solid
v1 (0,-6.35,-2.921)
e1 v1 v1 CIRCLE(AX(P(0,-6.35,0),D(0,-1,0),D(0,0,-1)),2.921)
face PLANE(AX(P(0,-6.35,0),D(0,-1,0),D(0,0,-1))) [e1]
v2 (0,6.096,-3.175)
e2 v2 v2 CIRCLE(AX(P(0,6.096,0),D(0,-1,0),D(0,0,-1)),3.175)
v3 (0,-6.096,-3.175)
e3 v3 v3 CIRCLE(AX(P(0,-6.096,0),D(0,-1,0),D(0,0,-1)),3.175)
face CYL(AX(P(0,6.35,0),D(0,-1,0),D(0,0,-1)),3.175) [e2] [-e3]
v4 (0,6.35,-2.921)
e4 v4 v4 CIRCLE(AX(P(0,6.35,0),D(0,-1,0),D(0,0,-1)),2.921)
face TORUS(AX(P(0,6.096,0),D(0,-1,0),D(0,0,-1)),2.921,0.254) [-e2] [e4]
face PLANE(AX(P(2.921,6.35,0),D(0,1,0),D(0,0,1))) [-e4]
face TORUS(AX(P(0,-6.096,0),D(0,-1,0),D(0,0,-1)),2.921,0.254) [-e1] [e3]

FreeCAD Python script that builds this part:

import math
import FreeCAD as App
import Part
import Sketcher

V = App.Vector
Q = App.Units.Quantity

doc = App.newDocument("Part")
params = doc.addObject("Spreadsheet::Sheet", "Params")
for row, (alias, value) in enumerate([
    ("sketch1_radius", "0.01 in"),
    ("sketch1_height", "0.5 in"),
    ("sketch1_width", "0.115 in"),
    ("revolution_angle", "360 deg"),
], start=1):
    params.set(f"A{row}", alias)
    params.set(f"B{row}", "=" + value)
    params.setAlias(f"B{row}", alias)

body = doc.addObject("PartDesign::Body", "Body")

# Sketch on XY plane
sketch1 = body.newObject("Sketcher::SketchObject", "Sketch")
sketch1.AttachmentSupport = (doc.getObject("XY_Plane"), [""])
sketch1.MapMode = "FlatFace"
sketch1.addGeometry(Part.LineSegment(V(2.921, 6.35, 0), V(0, 6.35, 0)), False)
sketch1.addGeometry(Part.LineSegment(V(0, 6.35, 0), V(0, -6.35, 0)), False)
sketch1.addGeometry(Part.LineSegment(V(0, -6.35, 0), V(2.921, -6.35, 0)), False)
sketch1.addGeometry(Part.ArcOfCircle(Part.Circle(V(2.921, -6.096, 0), V(0, 0, 1), 0.254), math.radians(-90), math.radians(0)), False)
sketch1.addGeometry(Part.LineSegment(V(3.175, -6.096, 0), V(3.175, 6.096, 0)), False)
sketch1.addGeometry(Part.ArcOfCircle(Part.Circle(V(2.921, 6.096, 0), V(0, 0, 1), 0.254), math.radians(0), math.radians(90)), False)
sketch1.addConstraint(Sketcher.Constraint("Coincident", 0, 2, 1, 1))
sketch1.addConstraint(Sketcher.Constraint("Coincident", 1, 2, 2, 1))
sketch1.addConstraint(Sketcher.Constraint("Tangent", 2, 2, 3, 1))
sketch1.addConstraint(Sketcher.Constraint("Tangent", 3, 2, 4, 1))
sketch1.addConstraint(Sketcher.Constraint("Tangent", 4, 2, 5, 1))
sketch1.addConstraint(Sketcher.Constraint("Tangent", 5, 2, 0, 1))
sketch1.addConstraint(Sketcher.Constraint("Horizontal", 0))
sketch1.addConstraint(Sketcher.Constraint("Vertical", 1))
sketch1.addConstraint(Sketcher.Constraint("Horizontal", 2))
sketch1.addConstraint(Sketcher.Constraint("Vertical", 4))
sketch1.addConstraint(Sketcher.Constraint("Equal", 3, 5))
sketch1.addConstraint(Sketcher.Constraint("Symmetric", 0, 2, 1, 2, -1, 1))
sketch1.addConstraint(Sketcher.Constraint("Radius", 3, Q("0.01 in")))
sketch1.addConstraint(Sketcher.Constraint("DistanceY", 1, 2, 1, 1, Q("0.5 in")))
sketch1.addConstraint(Sketcher.Constraint("DistanceX", 0, 2, 0, 1, Q("0.115 in")))
sketch1.setExpression("Constraints[12]", "Params.sketch1_radius")
sketch1.setExpression("Constraints[13]", "Params.sketch1_height")
sketch1.setExpression("Constraints[14]", "Params.sketch1_width")
revolution = body.newObject("PartDesign::Revolution", "Revolution")
revolution.Profile = sketch1
revolution.ReferenceAxis = (sketch1, ["V_Axis"])
revolution.setExpression("Angle", "Params.revolution_angle")

doc.recompute()
